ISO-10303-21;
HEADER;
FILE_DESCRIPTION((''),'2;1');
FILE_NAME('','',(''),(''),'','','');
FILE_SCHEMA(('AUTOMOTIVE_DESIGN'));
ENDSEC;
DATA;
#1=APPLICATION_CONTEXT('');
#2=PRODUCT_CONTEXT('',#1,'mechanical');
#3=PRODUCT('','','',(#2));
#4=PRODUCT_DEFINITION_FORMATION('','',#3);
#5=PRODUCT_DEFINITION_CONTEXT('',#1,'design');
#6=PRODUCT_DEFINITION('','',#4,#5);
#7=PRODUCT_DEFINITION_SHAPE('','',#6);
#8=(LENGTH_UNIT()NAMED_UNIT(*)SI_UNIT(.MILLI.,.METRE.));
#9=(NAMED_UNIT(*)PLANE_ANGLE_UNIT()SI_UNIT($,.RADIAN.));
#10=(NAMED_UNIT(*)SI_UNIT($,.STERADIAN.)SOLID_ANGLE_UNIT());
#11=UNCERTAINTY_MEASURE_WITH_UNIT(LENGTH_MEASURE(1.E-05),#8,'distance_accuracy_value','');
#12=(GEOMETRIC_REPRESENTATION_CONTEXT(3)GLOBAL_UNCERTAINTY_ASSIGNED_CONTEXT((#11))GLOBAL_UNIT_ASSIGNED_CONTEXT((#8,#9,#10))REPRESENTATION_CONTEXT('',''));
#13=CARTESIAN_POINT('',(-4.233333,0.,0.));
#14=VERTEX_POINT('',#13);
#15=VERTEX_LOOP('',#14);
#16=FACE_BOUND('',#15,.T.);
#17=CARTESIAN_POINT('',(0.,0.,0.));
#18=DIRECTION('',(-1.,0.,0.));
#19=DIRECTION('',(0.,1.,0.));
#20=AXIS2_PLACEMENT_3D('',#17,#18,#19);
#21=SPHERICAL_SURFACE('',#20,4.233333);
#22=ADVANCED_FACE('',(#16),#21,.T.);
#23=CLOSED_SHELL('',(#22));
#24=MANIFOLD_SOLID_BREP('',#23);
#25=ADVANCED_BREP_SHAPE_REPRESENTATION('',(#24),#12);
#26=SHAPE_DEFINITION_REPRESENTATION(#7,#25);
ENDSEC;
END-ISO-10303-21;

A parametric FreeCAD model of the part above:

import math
import FreeCAD as App
import Part
import Sketcher

doc = App.newDocument("Part")
body = doc.addObject("PartDesign::Body", "Body")

# Sketch on XY plane
sketch1 = body.newObject("Sketcher::SketchObject", "Sketch")
sketch1.AttachmentSupport = (doc.getObject("XY_Plane"), [""])
sketch1.MapMode = "FlatFace"
sketch1.addGeometry(Part.LineSegment(App.Vector(-4.233333, 0, 0), App.Vector(4.233333, 0, 0)), False)
sketch1.addGeometry(Part.ArcOfCircle(Part.Circle(App.Vector(0, 0, 0), App.Vector(0, 0, 1), 4.233333), math.radians(0), math.radians(180)), False)
sketch1.addConstraint(Sketcher.Constraint("Coincident", 0, 1, 1, 2))
sketch1.addConstraint(Sketcher.Constraint("Coincident", 1, 1, 0, 2))
sketch1.addConstraint(Sketcher.Constraint("Horizontal", 0))
sketch1.addConstraint(Sketcher.Constraint("Coincident", 1, 3, -1, 1))
sketch1.addConstraint(Sketcher.Constraint("PointOnObject", 0, 1, -1))
sketch1.addConstraint(Sketcher.Constraint("Radius", 1, 4.233333))
revolution = body.newObject("PartDesign::Revolution", "Revolution")
revolution.Profile = sketch1
revolution.ReferenceAxis = (sketch1, ["H_Axis"])
revolution.Angle = 360

doc.recompute()
